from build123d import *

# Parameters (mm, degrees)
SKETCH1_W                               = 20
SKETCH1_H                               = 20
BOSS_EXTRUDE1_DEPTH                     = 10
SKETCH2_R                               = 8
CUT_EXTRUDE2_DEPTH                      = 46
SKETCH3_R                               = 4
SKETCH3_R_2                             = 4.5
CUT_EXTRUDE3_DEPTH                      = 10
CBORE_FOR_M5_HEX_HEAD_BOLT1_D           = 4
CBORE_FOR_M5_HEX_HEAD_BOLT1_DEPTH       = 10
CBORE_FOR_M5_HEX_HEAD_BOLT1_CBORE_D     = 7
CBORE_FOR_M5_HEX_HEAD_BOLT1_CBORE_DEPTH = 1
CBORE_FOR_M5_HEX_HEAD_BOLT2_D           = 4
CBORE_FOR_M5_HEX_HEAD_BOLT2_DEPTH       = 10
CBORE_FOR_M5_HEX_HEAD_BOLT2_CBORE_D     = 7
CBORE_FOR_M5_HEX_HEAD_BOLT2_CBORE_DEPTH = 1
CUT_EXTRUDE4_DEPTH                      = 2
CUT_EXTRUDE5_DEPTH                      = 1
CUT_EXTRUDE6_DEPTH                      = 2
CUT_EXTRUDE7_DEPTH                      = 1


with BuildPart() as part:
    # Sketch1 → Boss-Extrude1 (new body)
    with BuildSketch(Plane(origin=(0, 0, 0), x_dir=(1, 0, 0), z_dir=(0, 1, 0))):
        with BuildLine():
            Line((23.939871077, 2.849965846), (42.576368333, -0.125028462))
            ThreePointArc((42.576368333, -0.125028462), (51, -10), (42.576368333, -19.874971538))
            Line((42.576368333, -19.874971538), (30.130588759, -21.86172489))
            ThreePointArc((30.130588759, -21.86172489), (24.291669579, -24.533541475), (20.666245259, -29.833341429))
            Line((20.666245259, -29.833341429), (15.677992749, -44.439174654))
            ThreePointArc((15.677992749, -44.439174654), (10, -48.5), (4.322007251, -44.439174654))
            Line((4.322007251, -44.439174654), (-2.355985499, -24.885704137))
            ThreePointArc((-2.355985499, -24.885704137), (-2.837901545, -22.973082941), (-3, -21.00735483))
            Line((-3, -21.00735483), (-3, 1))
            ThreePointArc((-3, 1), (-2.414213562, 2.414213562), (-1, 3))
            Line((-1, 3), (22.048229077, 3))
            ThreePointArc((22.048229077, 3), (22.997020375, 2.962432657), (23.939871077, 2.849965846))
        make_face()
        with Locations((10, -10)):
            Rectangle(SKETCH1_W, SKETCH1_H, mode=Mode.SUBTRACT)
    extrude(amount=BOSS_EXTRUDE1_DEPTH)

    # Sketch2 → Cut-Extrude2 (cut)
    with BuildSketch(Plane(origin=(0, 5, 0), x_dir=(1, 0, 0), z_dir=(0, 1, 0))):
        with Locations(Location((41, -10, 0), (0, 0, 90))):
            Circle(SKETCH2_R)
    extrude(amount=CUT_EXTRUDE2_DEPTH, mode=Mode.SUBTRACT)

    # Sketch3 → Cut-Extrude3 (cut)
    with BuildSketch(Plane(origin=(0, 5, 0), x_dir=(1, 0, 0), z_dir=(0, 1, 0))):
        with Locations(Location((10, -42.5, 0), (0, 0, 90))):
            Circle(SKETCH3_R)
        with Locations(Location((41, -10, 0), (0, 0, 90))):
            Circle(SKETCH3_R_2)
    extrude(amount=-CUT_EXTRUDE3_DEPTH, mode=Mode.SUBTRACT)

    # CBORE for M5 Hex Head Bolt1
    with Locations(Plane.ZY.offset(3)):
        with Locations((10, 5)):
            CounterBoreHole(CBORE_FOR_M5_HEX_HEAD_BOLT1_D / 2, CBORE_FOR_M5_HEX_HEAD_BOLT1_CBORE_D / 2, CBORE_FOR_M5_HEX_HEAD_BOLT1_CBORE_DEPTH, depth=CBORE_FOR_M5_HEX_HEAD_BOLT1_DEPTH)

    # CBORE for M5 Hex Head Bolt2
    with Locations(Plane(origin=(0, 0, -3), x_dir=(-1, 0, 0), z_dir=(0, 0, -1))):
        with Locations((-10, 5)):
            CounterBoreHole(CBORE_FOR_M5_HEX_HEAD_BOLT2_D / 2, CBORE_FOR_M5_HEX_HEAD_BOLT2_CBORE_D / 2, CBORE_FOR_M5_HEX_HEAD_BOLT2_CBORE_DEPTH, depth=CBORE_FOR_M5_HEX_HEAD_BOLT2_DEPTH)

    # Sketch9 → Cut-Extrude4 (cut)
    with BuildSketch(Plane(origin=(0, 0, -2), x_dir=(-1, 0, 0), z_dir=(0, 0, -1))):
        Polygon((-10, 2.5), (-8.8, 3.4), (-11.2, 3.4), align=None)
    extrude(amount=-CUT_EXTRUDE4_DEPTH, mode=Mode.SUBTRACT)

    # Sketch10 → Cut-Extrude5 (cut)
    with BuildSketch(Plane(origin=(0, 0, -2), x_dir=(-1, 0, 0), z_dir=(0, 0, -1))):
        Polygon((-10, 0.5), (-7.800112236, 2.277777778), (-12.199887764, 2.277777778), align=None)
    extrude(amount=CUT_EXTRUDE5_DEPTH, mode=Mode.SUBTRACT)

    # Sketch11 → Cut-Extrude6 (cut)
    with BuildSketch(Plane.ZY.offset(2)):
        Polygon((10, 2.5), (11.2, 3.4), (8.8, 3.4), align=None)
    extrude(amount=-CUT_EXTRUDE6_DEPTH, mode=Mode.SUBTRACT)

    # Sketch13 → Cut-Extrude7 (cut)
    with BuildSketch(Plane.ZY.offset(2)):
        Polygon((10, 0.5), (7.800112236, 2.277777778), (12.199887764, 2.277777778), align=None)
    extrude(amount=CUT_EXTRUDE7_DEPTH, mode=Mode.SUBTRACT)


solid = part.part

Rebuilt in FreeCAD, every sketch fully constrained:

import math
import FreeCAD as App
import Part
import Sketcher
Q = App.Units.Quantity


def add_polygon(sketch, points):
    """Adds a closed chain of lines whose ends are joined by coincident constraints."""
    first, n = sketch.GeometryCount, len(points)
    for a, b in zip(points, points[1:] + points[:1]):
        sketch.addGeometry(Part.LineSegment(App.Vector(*a, 0), App.Vector(*b, 0)), False)
    for i in range(n):
        sketch.addConstraint(Sketcher.Constraint("Coincident", first + i, 2, first + (i + 1) % n, 1))

doc = App.newDocument("Part")
body = doc.addObject("PartDesign::Body", "Body")

# Sketch on XZ plane
sketch1 = body.newObject("Sketcher::SketchObject", "Sketch")
sketch1.AttachmentSupport = (doc.getObject("XZ_Plane"), [""])
sketch1.MapMode = "FlatFace"
sketch1.addGeometry(Part.LineSegment(App.Vector(42.6, 0.1, 0), App.Vector(23.9, -2.8, 0)), False)  # 0
sketch1.addGeometry(Part.ArcOfCircle(Part.Circle(App.Vector(22, 9, 0), App.Vector(0, 0, 1), 12), math.radians(-90), math.radians(-80.93)), False)  # 1
sketch1.addGeometry(Part.LineSegment(App.Vector(22, -3, 0), App.Vector(-1, -3, 0)), False)  # 2
sketch1.addGeometry(Part.ArcOfCircle(Part.Circle(App.Vector(-1, -1, 0), App.Vector(0, 0, 1), 2), math.radians(-180), math.radians(-90)), False)  # 3
sketch1.addGeometry(Part.LineSegment(App.Vector(-3, -1, 0), App.Vector(-3, 21, 0)), False)  # 4
sketch1.addGeometry(Part.ArcOfCircle(Part.Circle(App.Vector(9, 21, 0), App.Vector(0, 0, 1), 12), math.radians(161.14), math.radians(180)), False)  # 5
sketch1.addGeometry(Part.LineSegment(App.Vector(-2.4, 24.9, 0), App.Vector(4.3, 44.4, 0)), False)  # 6
sketch1.addGeometry(Part.ArcOfCircle(Part.Circle(App.Vector(10, 42.5, 0), App.Vector(0, 0, 1), 6), math.radians(19), math.radians(161)), False)  # 7
sketch1.addGeometry(Part.LineSegment(App.Vector(15.7, 44.4, 0), App.Vector(20.7, 29.8, 0)), False)  # 8
sketch1.addGeometry(Part.ArcOfCircle(Part.Circle(App.Vector(32, 33.7, 0), App.Vector(0, 0, 1), 12), math.radians(-161), math.radians(-99)), False)  # 9
sketch1.addGeometry(Part.LineSegment(App.Vector(30.1, 21.9, 0), App.Vector(42.6, 19.9, 0)), False)  # 10
sketch1.addGeometry(Part.ArcOfCircle(Part.Circle(App.Vector(41, 10, 0), App.Vector(0, 0, 1), 10), math.radians(-81), math.radians(81)), False)  # 11
add_polygon(sketch1, [(0, 20), (0, 0), (20, 0), (20, 20)])  # lines 12-15
sketch1.addConstraint(Sketcher.Constraint("Tangent", 0, 2, 1, 2))
sketch1.addConstraint(Sketcher.Constraint("Tangent", 1, 1, 2, 1))
sketch1.addConstraint(Sketcher.Constraint("Tangent", 2, 2, 3, 2))
sketch1.addConstraint(Sketcher.Constraint("Tangent", 3, 1, 4, 1))
sketch1.addConstraint(Sketcher.Constraint("Tangent", 4, 2, 5, 2))
sketch1.addConstraint(Sketcher.Constraint("Tangent", 5, 1, 6, 1))
sketch1.addConstraint(Sketcher.Constraint("Tangent", 6, 2, 7, 2))
sketch1.addConstraint(Sketcher.Constraint("Tangent", 7, 1, 8, 1))
sketch1.addConstraint(Sketcher.Constraint("Tangent", 8, 2, 9, 1))
sketch1.addConstraint(Sketcher.Constraint("Tangent", 9, 2, 10, 1))
sketch1.addConstraint(Sketcher.Constraint("Tangent", 10, 2, 11, 2))
sketch1.addConstraint(Sketcher.Constraint("Tangent", 11, 1, 0, 1))
sketch1.addConstraint(Sketcher.Constraint("Horizontal", 2))
sketch1.addConstraint(Sketcher.Constraint("Vertical", 4))
sketch1.addConstraint(Sketcher.Constraint("Vertical", 12))
sketch1.addConstraint(Sketcher.Constraint("Horizontal", 13))
sketch1.addConstraint(Sketcher.Constraint("Vertical", 14))
sketch1.addConstraint(Sketcher.Constraint("Horizontal", 15))
sketch1.addConstraint(Sketcher.Constraint("Coincident", 12, 2, -1, 1))
sketch1.addConstraint(Sketcher.Constraint("Equal", 1, 5))
sketch1.addConstraint(Sketcher.Constraint("Equal", 5, 9))
sketch1.addConstraint(Sketcher.Constraint("Horizontal", 6, 2, 7, 1))
sketch1.addConstraint(Sketcher.Constraint("Vertical", 10, 2, 11, 1))
sketch1.addConstraint(Sketcher.Constraint("Equal", 15, 12))
sketch1.addConstraint(Sketcher.Constraint("Radius", 1, Q("12 mm")))
sketch1.addConstraint(Sketcher.Constraint("Radius", 3, Q("2 mm")))
sketch1.addConstraint(Sketcher.Constraint("Radius", 7, Q("6 mm")))
sketch1.addConstraint(Sketcher.Constraint("Radius", 11, Q("10 mm")))
sketch1.addConstraint(Sketcher.Constraint("DistanceX", 13, 1, 13, 2, Q("20 mm")))
sketch1.addConstraint(Sketcher.Constraint("DistanceY", -1, 1, 1, 3, Q("9 mm")))
sketch1.addConstraint(Sketcher.Constraint("DistanceX", 3, 3, -1, 1, Q("1 mm")))
sketch1.addConstraint(Sketcher.Constraint("DistanceX", -1, 1, 7, 3, Q("10 mm")))
sketch1.addConstraint(Sketcher.Constraint("DistanceX", -1, 1, 11, 3, Q("41 mm")))
sketch1.addConstraint(Sketcher.Constraint("DistanceY", -1, 1, 11, 3, Q("10 mm")))
sketch1.addConstraint(Sketcher.Constraint("DistanceY", -1, 1, 7, 3, Q("42.5 mm")))
sketch1.addConstraint(Sketcher.Constraint("DistanceX", 1, 3, 9, 3, Q("9.974002 mm")))
sketch1.addConstraint(Sketcher.Constraint("DistanceX", 2, 2, 2, 1, Q("23.048229 mm")))
pad1 = body.newObject("PartDesign::Pad", "Pad")
pad1.Profile = sketch1
pad1.Length = 10
pad1.Reversed = True

# Sketch on XZ plane
sketch2 = body.newObject("Sketcher::SketchObject", "Sketch001")
sketch2.AttachmentSupport = (doc.getObject("XZ_Plane"), [""])
sketch2.MapMode = "FlatFace"
sketch2.AttachmentOffset = App.Placement(App.Vector(0, 0, -5), App.Rotation())
sketch2.addGeometry(Part.Circle(App.Vector(41, 10, 0), App.Vector(0, 0, 1), 8), False)
sketch2.addConstraint(Sketcher.Constraint("Diameter", 0, Q("16 mm")))
sketch2.addConstraint(Sketcher.Constraint("DistanceX", -1, 1, 0, 3, Q("41 mm")))
sketch2.addConstraint(Sketcher.Constraint("DistanceY", -1, 1, 0, 3, Q("10 mm")))
pocket1 = body.newObject("PartDesign::Pocket", "Pocket")
pocket1.Profile = sketch2
pocket1.Length = 46

# Sketch on XZ plane
sketch3 = body.newObject("Sketcher::SketchObject", "Sketch002")
sketch3.AttachmentSupport = (doc.getObject("XZ_Plane"), [""])
sketch3.MapMode = "FlatFace"
sketch3.AttachmentOffset = App.Placement(App.Vector(0, 0, -5), App.Rotation())
sketch3.addGeometry(Part.Circle(App.Vector(10, 42.5, 0), App.Vector(0, 0, 1), 4), False)
sketch3.addGeometry(Part.Circle(App.Vector(41, 10, 0), App.Vector(0, 0, 1), 4.5), False)
sketch3.addConstraint(Sketcher.Constraint("Diameter", 0, Q("8 mm")))
sketch3.addConstraint(Sketcher.Constraint("Diameter", 1, Q("9 mm")))
sketch3.addConstraint(Sketcher.Constraint("DistanceX", -1, 1, 0, 3, Q("10 mm")))
sketch3.addConstraint(Sketcher.Constraint("DistanceX", -1, 1, 1, 3, Q("41 mm")))
sketch3.addConstraint(Sketcher.Constraint("DistanceY", -1, 1, 1, 3, Q("10 mm")))
sketch3.addConstraint(Sketcher.Constraint("DistanceY", -1, 1, 0, 3, Q("42.5 mm")))
pocket2 = body.newObject("PartDesign::Pocket", "Pocket001")
pocket2.Profile = sketch3
pocket2.Length = 10
pocket2.Reversed = True

# Sketch on YZ plane
sketch4 = body.newObject("Sketcher::SketchObject", "Sketch003")
sketch4.AttachmentSupport = (doc.getObject("YZ_Plane"), [""])
sketch4.MapMode = "FlatFace"
sketch4.AttachmentOffset = App.Placement(App.Vector(0, 0, -3), App.Rotation())
sketch4.addGeometry(Part.Circle(App.Vector(5, 10, 0), App.Vector(0, 0, 1), 2), False)
sketch4.addConstraint(Sketcher.Constraint("Diameter", 0, Q("4 mm")))
sketch4.addConstraint(Sketcher.Constraint("DistanceX", -1, 1, 0, 3, Q("5 mm")))
sketch4.addConstraint(Sketcher.Constraint("DistanceY", -1, 1, 0, 3, Q("10 mm")))
doc.recompute()
hole = body.newObject("PartDesign::Hole", "Hole")
hole.Profile = sketch4
hole.ThreadType = "None"
hole.Diameter = 4
hole.DepthType = "Dimension"
hole.Depth = 10
hole.DrillPoint = "Flat"
hole.HoleCutType = "Counterbore"
hole.HoleCutDiameter = 7
hole.HoleCutDepth = 1
hole.Reversed = True

# Sketch on XY plane
sketch5 = body.newObject("Sketcher::SketchObject", "Sketch004")
sketch5.AttachmentSupport = (doc.getObject("XY_Plane"), [""])
sketch5.MapMode = "FlatFace"
sketch5.AttachmentOffset = App.Placement(App.Vector(0, 0, -3), App.Rotation())
sketch5.addGeometry(Part.Circle(App.Vector(10, 5, 0), App.Vector(0, 0, 1), 2), False)
sketch5.addConstraint(Sketcher.Constraint("Diameter", 0, Q("4 mm")))
sketch5.addConstraint(Sketcher.Constraint("DistanceX", -1, 1, 0, 3, Q("10 mm")))
sketch5.addConstraint(Sketcher.Constraint("DistanceY", -1, 1, 0, 3, Q("5 mm")))
doc.recompute()
hole2 = body.newObject("PartDesign::Hole", "Hole001")
hole2.Profile = sketch5
hole2.ThreadType = "None"
hole2.Diameter = 4
hole2.DepthType = "Dimension"
hole2.Depth = 10
hole2.DrillPoint = "Flat"
hole2.HoleCutType = "Counterbore"
hole2.HoleCutDiameter = 7
hole2.HoleCutDepth = 1
hole2.Reversed = True

# Sketch on XY plane
sketch6 = body.newObject("Sketcher::SketchObject", "Sketch005")
sketch6.AttachmentSupport = (doc.getObject("XY_Plane"), [""])
sketch6.MapMode = "FlatFace"
sketch6.AttachmentOffset = App.Placement(App.Vector(0, 0, -2), App.Rotation())
add_polygon(sketch6, [(10, 2.5), (8.8, 3.4), (11.2, 3.4)])  # lines 0-2
sketch6.addConstraint(Sketcher.Constraint("Horizontal", 1))
sketch6.addConstraint(Sketcher.Constraint("Equal", 0, 2))
sketch6.addConstraint(Sketcher.Constraint("DistanceX", 1, 1, 1, 2, Q("2.4 mm")))
sketch6.addConstraint(Sketcher.Constraint("DistanceX", -1, 1, 2, 2, Q("10 mm")))
sketch6.addConstraint(Sketcher.Constraint("Distance", 0, Q("1.5 mm")))
sketch6.addConstraint(Sketcher.Constraint("DistanceY", -1, 1, 0, 2, Q("3.4 mm")))
pocket3 = body.newObject("PartDesign::Pocket", "Pocket002")
pocket3.Profile = sketch6
pocket3.Length = 2
pocket3.Reversed = True

# Sketch on XY plane
sketch7 = body.newObject("Sketcher::SketchObject", "Sketch006")
sketch7.AttachmentSupport = (doc.getObject("XY_Plane"), [""])
sketch7.MapMode = "FlatFace"
sketch7.AttachmentOffset = App.Placement(App.Vector(0, 0, -2), App.Rotation())
add_polygon(sketch7, [(10, 0.5), (7.8, 2.3), (12.2, 2.3)])  # lines 0-2
sketch7.addConstraint(Sketcher.Constraint("Horizontal", 1))
sketch7.addConstraint(Sketcher.Constraint("Equal", 0, 2))
sketch7.addConstraint(Sketcher.Constraint("DistanceX", -1, 1, 2, 2, Q("10 mm")))
sketch7.addConstraint(Sketcher.Constraint("DistanceY", -1, 1, 2, 2, Q("0.5 mm")))
sketch7.addConstraint(Sketcher.Constraint("DistanceX", 1, 1, 1, 2, Q("4.399776 mm")))
sketch7.addConstraint(Sketcher.Constraint("Distance", 0, Q("2.828427 mm")))
pocket4 = body.newObject("PartDesign::Pocket", "Pocket003")
pocket4.Profile = sketch7
pocket4.Length = 1

# Sketch on YZ plane
sketch8 = body.newObject("Sketcher::SketchObject", "Sketch007")
sketch8.AttachmentSupport = (doc.getObject("YZ_Plane"), [""])
sketch8.MapMode = "FlatFace"
sketch8.AttachmentOffset = App.Placement(App.Vector(0, 0, -2), App.Rotation())
add_polygon(sketch8, [(2.5, 10), (3.4, 11.2), (3.4, 8.8)])  # lines 0-2
sketch8.addConstraint(Sketcher.Constraint("Vertical", 1))
sketch8.addConstraint(Sketcher.Constraint("Equal", 0, 2))
sketch8.addConstraint(Sketcher.Constraint("DistanceY", 1, 2, 1, 1, Q("2.4 mm")))
sketch8.addConstraint(Sketcher.Constraint("DistanceY", -1, 1, 2, 2, Q("10 mm")))
sketch8.addConstraint(Sketcher.Constraint("Distance", 0, Q("1.5 mm")))
sketch8.addConstraint(Sketcher.Constraint("DistanceX", -1, 1, 0, 2, Q("3.4 mm")))
pocket5 = body.newObject("PartDesign::Pocket", "Pocket004")
pocket5.Profile = sketch8
pocket5.Length = 2
pocket5.Reversed = True

# Sketch on YZ plane
sketch9 = body.newObject("Sketcher::SketchObject", "Sketch008")
sketch9.AttachmentSupport = (doc.getObject("YZ_Plane"), [""])
sketch9.MapMode = "FlatFace"
sketch9.AttachmentOffset = App.Placement(App.Vector(0, 0, -2), App.Rotation())
add_polygon(sketch9, [(2.3, 7.8), (0.5, 10), (2.3, 12.2)])  # lines 0-2
sketch9.addConstraint(Sketcher.Constraint("Vertical", 2))
sketch9.addConstraint(Sketcher.Constraint("Equal", 0, 1))
sketch9.addConstraint(Sketcher.Constraint("DistanceY", -1, 1, 0, 2, Q("10 mm")))
sketch9.addConstraint(Sketcher.Constraint("DistanceX", -1, 1, 0, 2, Q("0.5 mm")))
sketch9.addConstraint(Sketcher.Constraint("DistanceY", 2, 2, 2, 1, Q("4.399776 mm")))
sketch9.addConstraint(Sketcher.Constraint("Distance", 0, Q("2.828427 mm")))
pocket6 = body.newObject("PartDesign::Pocket", "Pocket005")
pocket6.Profile = sketch9
pocket6.Length = 1

doc.recompute()
